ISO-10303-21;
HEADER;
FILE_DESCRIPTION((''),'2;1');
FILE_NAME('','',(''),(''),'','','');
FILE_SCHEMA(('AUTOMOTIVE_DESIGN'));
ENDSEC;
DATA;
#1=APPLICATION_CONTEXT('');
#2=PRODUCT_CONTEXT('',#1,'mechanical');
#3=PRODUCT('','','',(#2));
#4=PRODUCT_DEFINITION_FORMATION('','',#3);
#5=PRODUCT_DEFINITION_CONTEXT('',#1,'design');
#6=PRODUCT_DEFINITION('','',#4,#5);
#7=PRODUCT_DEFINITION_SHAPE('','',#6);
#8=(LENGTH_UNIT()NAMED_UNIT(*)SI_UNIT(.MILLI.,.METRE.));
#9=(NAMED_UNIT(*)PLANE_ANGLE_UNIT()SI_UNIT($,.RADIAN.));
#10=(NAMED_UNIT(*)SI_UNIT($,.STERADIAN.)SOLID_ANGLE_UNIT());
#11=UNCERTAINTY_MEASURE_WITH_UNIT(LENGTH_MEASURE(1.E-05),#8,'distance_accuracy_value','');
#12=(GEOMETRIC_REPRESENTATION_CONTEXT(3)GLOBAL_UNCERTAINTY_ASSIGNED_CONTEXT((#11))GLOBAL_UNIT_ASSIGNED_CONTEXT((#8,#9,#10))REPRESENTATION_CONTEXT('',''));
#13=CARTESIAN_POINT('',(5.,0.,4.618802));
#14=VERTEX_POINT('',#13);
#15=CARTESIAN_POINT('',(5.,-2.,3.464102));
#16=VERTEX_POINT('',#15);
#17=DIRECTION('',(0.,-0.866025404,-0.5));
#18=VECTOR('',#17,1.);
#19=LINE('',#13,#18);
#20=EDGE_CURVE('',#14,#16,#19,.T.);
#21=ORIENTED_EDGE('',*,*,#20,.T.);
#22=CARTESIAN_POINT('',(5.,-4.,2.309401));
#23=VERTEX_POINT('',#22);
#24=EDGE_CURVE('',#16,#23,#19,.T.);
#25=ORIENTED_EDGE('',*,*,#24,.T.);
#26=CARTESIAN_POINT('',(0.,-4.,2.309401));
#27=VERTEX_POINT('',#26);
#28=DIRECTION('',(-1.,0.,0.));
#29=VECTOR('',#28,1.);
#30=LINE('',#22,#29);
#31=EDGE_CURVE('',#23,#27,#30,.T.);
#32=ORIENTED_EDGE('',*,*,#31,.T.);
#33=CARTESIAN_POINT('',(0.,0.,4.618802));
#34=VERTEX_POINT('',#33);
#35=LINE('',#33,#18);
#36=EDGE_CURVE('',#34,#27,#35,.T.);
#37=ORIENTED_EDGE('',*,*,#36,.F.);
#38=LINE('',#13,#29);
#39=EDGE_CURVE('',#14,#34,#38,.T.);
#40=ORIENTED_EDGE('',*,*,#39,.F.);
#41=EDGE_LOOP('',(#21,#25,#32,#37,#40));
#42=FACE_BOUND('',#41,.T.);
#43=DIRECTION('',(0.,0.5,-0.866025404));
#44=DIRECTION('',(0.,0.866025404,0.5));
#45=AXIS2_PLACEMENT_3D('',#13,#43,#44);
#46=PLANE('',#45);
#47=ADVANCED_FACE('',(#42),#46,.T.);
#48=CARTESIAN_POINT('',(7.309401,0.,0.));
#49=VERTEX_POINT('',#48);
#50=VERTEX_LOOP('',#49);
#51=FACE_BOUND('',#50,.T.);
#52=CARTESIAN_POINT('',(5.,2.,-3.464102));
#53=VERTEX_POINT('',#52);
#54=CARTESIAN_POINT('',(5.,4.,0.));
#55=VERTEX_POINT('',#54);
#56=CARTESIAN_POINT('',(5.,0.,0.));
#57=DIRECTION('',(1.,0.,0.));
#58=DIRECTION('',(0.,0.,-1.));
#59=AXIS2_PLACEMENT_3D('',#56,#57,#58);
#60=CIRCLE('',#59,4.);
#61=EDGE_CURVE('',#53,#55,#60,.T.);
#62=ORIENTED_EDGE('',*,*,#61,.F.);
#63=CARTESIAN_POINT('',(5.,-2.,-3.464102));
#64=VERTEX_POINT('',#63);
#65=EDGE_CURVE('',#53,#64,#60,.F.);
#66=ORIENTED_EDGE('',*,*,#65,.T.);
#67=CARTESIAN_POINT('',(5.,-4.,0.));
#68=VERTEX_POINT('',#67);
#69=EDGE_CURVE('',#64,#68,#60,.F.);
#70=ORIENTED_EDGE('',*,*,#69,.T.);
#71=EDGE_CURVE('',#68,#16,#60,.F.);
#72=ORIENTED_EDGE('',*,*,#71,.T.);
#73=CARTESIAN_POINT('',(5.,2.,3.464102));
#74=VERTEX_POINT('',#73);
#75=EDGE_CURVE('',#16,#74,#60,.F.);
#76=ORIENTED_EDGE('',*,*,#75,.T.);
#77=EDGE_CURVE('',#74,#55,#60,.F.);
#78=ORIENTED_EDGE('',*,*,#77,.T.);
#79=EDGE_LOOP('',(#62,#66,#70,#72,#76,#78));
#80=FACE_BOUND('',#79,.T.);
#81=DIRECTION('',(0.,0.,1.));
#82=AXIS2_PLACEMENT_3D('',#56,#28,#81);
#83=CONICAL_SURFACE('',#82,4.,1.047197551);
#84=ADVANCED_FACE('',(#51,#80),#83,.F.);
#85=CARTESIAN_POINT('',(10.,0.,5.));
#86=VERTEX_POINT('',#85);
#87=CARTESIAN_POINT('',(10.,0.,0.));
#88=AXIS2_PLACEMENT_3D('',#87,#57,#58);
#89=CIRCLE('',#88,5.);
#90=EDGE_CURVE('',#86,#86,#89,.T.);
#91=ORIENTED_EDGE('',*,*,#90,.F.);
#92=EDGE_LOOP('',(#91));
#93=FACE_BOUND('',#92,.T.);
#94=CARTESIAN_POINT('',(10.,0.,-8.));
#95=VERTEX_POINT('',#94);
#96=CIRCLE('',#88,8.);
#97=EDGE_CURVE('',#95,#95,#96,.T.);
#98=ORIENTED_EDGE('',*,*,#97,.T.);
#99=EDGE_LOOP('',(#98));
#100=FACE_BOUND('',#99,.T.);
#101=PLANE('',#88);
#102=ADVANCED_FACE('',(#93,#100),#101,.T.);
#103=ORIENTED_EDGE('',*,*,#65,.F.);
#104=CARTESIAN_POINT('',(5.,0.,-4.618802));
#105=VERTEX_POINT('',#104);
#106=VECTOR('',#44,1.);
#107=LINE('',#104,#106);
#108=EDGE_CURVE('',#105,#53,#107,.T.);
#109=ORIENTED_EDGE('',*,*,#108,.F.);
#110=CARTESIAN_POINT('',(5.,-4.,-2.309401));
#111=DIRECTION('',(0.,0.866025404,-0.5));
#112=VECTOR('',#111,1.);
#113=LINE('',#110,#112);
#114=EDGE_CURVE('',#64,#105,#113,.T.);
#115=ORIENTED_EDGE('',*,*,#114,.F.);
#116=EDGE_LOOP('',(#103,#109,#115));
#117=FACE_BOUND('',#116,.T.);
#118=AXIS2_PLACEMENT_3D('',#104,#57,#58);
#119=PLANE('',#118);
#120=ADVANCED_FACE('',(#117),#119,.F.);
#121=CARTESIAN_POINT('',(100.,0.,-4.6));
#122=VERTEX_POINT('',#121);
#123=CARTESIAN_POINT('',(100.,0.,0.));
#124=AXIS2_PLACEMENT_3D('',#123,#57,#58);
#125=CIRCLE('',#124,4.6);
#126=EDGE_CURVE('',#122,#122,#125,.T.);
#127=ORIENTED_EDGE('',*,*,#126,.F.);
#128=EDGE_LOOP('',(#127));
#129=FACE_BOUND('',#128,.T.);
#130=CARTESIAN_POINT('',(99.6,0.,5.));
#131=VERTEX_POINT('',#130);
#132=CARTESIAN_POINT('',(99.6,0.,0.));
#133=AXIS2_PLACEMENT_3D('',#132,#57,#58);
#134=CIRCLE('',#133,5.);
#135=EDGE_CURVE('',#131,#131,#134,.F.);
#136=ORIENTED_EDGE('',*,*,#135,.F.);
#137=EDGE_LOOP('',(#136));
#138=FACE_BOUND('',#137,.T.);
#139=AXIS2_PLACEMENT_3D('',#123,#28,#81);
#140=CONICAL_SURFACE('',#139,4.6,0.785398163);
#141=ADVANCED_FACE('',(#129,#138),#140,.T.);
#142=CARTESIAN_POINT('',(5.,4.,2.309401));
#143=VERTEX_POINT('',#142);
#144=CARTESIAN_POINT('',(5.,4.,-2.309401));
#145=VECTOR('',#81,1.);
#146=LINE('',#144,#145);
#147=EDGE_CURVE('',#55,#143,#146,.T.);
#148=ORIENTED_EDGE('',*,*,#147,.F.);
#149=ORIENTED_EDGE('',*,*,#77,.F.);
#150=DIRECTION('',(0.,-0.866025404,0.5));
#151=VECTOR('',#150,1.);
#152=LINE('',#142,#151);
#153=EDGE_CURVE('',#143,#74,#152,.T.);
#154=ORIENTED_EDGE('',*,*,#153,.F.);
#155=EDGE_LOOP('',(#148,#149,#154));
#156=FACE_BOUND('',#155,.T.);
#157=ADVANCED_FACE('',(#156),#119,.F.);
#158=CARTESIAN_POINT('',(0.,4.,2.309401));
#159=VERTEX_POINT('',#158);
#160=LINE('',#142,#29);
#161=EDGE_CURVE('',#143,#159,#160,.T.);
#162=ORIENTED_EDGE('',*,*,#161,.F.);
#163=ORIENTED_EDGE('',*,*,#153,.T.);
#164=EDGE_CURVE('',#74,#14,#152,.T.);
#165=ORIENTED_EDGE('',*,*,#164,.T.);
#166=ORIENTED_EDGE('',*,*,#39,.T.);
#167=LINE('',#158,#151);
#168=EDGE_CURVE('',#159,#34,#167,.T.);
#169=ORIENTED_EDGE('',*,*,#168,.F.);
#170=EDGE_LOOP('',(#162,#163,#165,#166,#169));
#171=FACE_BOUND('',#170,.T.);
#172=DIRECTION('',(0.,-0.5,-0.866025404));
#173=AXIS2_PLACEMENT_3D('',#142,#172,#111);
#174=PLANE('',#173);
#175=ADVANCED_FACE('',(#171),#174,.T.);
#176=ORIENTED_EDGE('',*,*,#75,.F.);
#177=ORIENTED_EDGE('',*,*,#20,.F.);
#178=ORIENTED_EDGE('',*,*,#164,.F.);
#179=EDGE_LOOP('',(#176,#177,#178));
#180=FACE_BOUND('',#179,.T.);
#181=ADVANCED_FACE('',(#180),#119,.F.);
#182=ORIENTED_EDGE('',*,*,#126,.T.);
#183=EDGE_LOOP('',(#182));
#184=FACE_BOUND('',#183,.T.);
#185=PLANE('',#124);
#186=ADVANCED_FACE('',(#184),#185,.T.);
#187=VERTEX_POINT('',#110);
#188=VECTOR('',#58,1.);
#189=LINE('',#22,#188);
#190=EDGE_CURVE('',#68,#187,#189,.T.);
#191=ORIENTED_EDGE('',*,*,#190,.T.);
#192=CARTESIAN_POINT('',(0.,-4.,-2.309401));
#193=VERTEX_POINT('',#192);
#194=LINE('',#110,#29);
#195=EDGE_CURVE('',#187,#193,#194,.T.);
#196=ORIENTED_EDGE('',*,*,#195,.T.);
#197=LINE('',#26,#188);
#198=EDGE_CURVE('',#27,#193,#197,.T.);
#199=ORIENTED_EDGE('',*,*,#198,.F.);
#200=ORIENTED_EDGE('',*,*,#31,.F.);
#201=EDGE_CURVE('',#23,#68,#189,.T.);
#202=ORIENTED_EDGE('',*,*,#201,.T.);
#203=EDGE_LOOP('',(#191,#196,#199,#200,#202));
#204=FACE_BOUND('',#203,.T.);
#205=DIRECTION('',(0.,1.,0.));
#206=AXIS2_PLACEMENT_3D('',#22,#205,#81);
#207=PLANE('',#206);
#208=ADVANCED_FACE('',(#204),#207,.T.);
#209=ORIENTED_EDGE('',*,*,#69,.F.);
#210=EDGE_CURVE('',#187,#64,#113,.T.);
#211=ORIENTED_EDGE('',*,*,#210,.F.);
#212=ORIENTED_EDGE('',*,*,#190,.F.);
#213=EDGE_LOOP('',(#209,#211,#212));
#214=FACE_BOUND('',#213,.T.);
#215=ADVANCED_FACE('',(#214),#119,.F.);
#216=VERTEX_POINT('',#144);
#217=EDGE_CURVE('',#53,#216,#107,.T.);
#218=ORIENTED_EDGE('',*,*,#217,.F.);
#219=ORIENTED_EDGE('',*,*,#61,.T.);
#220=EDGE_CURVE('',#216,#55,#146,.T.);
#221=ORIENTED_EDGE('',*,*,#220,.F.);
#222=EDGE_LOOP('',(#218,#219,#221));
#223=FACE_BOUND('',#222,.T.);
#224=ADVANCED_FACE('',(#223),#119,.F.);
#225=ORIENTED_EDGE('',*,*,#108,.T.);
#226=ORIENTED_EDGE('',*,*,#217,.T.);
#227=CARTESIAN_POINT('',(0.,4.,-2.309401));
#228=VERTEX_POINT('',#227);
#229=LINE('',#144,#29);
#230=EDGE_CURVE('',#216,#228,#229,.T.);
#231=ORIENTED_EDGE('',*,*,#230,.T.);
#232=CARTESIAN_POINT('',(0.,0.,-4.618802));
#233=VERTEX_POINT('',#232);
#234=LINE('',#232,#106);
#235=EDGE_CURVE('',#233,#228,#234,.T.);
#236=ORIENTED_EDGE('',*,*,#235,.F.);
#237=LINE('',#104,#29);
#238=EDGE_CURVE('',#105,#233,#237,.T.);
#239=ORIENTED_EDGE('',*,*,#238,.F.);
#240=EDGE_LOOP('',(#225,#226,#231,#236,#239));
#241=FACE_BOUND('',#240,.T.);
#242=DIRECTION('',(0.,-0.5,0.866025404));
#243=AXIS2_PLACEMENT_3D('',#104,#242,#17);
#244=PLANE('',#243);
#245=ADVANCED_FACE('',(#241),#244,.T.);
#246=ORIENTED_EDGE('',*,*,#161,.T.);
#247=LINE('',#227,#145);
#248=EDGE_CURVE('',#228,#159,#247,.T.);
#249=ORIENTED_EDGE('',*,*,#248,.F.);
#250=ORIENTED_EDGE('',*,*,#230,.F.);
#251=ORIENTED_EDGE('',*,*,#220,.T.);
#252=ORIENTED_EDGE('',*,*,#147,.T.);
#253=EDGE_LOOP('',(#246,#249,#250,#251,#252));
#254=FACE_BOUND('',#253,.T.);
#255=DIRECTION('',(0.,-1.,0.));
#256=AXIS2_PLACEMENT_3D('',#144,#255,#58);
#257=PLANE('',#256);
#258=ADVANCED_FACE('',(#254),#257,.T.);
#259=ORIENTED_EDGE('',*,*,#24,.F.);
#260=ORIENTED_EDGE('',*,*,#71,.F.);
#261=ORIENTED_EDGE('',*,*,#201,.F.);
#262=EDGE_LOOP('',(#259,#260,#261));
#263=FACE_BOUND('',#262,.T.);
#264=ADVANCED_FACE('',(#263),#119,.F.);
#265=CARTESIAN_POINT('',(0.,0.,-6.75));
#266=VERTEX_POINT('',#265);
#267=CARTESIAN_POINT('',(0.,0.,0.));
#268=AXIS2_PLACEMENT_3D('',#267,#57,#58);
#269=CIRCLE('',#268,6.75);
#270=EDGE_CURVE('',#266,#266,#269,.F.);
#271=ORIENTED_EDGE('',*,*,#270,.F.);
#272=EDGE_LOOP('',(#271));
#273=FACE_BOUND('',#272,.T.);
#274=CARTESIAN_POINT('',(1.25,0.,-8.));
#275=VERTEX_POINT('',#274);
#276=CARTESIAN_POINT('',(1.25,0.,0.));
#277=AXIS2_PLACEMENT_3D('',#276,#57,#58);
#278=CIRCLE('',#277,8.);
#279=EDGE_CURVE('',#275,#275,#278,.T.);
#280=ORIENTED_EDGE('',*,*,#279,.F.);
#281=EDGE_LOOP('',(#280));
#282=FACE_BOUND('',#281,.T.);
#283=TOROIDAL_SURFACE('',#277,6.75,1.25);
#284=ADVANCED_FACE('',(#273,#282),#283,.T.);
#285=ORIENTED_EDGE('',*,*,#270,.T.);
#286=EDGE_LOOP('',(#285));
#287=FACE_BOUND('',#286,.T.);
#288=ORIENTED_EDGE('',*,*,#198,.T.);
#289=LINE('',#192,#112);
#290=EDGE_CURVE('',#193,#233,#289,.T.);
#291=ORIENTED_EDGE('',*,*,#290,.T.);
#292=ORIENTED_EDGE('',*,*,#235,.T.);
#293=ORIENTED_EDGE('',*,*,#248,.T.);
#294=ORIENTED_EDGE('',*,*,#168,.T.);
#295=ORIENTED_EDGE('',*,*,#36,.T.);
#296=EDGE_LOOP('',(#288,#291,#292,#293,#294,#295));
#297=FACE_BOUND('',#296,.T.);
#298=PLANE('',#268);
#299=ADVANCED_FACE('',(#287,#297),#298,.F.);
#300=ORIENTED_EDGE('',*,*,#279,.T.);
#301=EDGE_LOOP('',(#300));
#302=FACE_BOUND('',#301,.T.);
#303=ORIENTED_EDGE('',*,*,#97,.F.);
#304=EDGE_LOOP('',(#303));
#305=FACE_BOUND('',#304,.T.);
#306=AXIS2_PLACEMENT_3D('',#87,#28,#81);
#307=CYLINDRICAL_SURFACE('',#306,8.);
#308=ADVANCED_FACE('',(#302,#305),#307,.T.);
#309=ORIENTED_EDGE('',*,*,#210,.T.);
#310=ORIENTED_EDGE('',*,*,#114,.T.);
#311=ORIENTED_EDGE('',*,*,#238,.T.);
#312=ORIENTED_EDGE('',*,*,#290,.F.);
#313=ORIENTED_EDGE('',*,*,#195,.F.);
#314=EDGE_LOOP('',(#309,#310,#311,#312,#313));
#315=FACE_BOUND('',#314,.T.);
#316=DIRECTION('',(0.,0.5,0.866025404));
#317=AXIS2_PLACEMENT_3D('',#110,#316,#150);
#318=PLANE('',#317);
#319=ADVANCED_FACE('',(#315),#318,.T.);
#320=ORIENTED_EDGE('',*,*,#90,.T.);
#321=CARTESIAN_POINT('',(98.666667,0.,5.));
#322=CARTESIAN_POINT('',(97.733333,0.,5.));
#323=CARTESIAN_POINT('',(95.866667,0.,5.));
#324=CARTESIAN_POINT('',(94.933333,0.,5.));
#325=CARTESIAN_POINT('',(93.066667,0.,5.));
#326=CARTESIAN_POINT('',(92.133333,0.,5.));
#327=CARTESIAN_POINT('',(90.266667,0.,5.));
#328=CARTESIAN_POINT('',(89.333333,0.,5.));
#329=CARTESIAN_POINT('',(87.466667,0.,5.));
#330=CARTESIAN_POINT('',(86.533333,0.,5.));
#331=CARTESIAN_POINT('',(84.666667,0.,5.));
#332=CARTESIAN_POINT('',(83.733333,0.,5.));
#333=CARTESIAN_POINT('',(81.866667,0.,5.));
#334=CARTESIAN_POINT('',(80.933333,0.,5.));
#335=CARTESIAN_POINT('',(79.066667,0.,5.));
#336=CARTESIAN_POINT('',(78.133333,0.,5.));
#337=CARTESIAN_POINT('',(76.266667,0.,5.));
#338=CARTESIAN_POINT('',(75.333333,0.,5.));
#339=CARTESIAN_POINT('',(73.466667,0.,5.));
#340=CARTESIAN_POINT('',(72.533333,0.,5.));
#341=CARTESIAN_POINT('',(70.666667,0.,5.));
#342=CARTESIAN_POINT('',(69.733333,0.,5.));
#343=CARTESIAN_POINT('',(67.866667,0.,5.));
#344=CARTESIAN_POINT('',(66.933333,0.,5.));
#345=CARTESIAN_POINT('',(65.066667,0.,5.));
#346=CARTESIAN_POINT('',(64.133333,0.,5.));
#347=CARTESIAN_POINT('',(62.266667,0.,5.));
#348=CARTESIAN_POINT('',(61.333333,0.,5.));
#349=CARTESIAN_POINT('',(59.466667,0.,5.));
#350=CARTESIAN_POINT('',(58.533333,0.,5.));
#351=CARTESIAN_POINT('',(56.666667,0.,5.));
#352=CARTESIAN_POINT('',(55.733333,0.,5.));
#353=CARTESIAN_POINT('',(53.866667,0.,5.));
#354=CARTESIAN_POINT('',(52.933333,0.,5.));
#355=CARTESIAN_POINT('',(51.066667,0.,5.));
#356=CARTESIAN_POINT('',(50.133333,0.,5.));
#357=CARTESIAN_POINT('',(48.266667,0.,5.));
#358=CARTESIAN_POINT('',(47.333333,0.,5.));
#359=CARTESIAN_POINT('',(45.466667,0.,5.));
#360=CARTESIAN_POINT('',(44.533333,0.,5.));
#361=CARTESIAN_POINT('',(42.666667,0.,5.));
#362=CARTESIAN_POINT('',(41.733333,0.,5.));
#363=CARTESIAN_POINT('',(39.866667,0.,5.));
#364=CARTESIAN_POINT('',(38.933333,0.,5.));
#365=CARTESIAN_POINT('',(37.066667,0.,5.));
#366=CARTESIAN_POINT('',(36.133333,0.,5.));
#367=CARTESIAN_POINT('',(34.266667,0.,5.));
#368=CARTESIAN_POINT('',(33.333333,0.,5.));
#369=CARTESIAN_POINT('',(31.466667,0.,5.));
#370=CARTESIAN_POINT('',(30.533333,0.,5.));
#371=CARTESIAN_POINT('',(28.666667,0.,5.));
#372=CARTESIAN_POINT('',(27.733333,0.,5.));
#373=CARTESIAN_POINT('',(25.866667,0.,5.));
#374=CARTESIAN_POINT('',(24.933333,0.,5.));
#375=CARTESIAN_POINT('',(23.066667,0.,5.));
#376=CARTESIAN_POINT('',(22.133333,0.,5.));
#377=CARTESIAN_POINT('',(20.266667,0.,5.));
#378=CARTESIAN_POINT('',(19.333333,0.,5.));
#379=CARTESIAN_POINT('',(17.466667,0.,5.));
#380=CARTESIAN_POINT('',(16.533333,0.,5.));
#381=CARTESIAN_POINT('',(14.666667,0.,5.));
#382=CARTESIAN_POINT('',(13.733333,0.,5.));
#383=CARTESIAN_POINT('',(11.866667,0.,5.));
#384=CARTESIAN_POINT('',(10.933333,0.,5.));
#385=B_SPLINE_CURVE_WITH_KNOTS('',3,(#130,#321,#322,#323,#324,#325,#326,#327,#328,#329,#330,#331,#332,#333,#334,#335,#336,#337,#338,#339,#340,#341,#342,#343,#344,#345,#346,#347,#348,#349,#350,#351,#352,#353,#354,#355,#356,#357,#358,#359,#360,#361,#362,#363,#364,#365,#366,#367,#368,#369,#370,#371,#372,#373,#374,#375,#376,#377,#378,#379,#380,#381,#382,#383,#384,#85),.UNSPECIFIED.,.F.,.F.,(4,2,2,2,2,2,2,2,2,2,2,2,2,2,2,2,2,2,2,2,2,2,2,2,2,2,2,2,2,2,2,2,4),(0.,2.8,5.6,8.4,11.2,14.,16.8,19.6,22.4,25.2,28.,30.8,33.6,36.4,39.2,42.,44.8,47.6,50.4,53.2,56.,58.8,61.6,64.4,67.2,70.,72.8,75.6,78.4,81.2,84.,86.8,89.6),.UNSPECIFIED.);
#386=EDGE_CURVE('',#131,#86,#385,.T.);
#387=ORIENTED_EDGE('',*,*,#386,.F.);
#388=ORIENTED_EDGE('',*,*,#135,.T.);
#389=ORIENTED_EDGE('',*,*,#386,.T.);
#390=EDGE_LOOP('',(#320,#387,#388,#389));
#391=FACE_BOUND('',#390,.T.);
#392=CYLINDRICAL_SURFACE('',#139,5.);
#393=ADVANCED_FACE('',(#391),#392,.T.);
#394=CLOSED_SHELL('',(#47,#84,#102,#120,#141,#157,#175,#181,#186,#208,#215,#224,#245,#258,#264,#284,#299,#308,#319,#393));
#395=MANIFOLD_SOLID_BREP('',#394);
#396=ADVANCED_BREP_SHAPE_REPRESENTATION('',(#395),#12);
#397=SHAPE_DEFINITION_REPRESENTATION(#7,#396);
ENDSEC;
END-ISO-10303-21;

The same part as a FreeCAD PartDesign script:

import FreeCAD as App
import Part
import Sketcher
Q = App.Units.Quantity


def edges_at(feature, points):
    """Names of the edges that pass closest to the given points."""
    edges = feature.Shape.Edges
    near = lambda p: min(range(len(edges)), key=lambda i: edges[i].distToShape(Part.Vertex(*p))[0])
    return sorted({f"Edge{near(p) + 1}" for p in points})

doc = App.newDocument("Part")
body = doc.addObject("PartDesign::Body", "Body")

sketch1 = body.newObject("Sketcher::SketchObject", "Sketch")
sketch1.AttachmentSupport = (doc.getObject("YZ_Plane"), [""])
sketch1.MapMode = "FlatFace"
sketch1.addGeometry(Part.Circle(App.Vector(0, 0, 0), App.Vector(0, 0, 1), 8), False)
sketch1.addConstraint([
    Sketcher.Constraint("Coincident", 0, 3, -1, 1),
    Sketcher.Constraint("Diameter", 0, Q("16 mm")),
])
pad1 = body.newObject("PartDesign::Pad", "Pad")
pad1.Profile = sketch1
pad1.Length = 10

sketch2 = body.newObject("Sketcher::SketchObject", "Sketch001")
sketch2.AttachmentSupport = (doc.getObject("YZ_Plane"), [""])
sketch2.MapMode = "FlatFace"
sketch2.AttachmentOffset = App.Placement(App.Vector(0, 0, 10), App.Rotation())
sketch2.addGeometry(Part.Circle(App.Vector(0, 0, 0), App.Vector(0, 0, 1), 5), False)
sketch2.addConstraint([
    Sketcher.Constraint("Coincident", 0, 3, -1, 1),
    Sketcher.Constraint("Diameter", 0, Q("10 mm")),
])
pad2 = body.newObject("PartDesign::Pad", "Pad001")
pad2.Profile = sketch2
pad2.Length = 90

sketch3 = body.newObject("Sketcher::SketchObject", "Sketch002")
sketch3.AttachmentSupport = (doc.getObject("YZ_Plane"), [""])
sketch3.MapMode = "FlatFace"
sketch3.addGeometry([
    Part.LineSegment(App.Vector(0, -4.618802, 0), App.Vector(4, -2.309401, 0)),
    Part.LineSegment(App.Vector(4, -2.309401, 0), App.Vector(4, 2.309401, 0)),
    Part.LineSegment(App.Vector(4, 2.309401, 0), App.Vector(0, 4.618802, 0)),
    Part.LineSegment(App.Vector(0, 4.618802, 0), App.Vector(-4, 2.309401, 0)),
    Part.LineSegment(App.Vector(-4, 2.309401, 0), App.Vector(-4, -2.309401, 0)),
    Part.LineSegment(App.Vector(-4, -2.309401, 0), App.Vector(0, -4.618802, 0)),
], False)
sketch3.addConstraint([
    Sketcher.Constraint("Coincident", 0, 2, 1, 1),
    Sketcher.Constraint("Coincident", 1, 2, 2, 1),
    Sketcher.Constraint("Coincident", 2, 2, 3, 1),
    Sketcher.Constraint("Coincident", 3, 2, 4, 1),
    Sketcher.Constraint("Coincident", 4, 2, 5, 1),
    Sketcher.Constraint("Coincident", 5, 2, 0, 1),
    Sketcher.Constraint("Vertical", 1),
    Sketcher.Constraint("Vertical", 4),
    Sketcher.Constraint("Symmetric", 0, 2, 3, 2, -1, 1),
    Sketcher.Constraint("Symmetric", 2, 2, 5, 2, -1, 1),
    Sketcher.Constraint("PointOnObject", 2, 2, -2),
    Sketcher.Constraint("Parallel", 2, 5),
    Sketcher.Constraint("Horizontal", 1, 2, 3, 2),
    Sketcher.Constraint("Angle", 0, Q("30 deg")),
    Sketcher.Constraint("DistanceX", -1, 1, 0, 2, Q("4 mm")),
    Sketcher.Constraint("DistanceY", 0, 2, -1, 1, Q("2.309401 mm")),
])
pocket1 = body.newObject("PartDesign::Pocket", "Pocket")
pocket1.Profile = sketch3
pocket1.Length = 5
pocket1.Reversed = True

sketch4 = body.newObject("Sketcher::SketchObject", "Sketch003")
sketch4.AttachmentSupport = (doc.getObject("XY_Plane"), [""])
sketch4.MapMode = "FlatFace"
sketch4.addGeometry([
    Part.LineSegment(App.Vector(5, -4, 0), App.Vector(7.309401, 0, 0)),
    Part.LineSegment(App.Vector(7.309401, 0, 0), App.Vector(5, 0, 0)),
    Part.LineSegment(App.Vector(5, 0, 0), App.Vector(5, -4, 0)),
], False)
sketch4.addConstraint([
    Sketcher.Constraint("Coincident", 0, 2, 1, 1),
    Sketcher.Constraint("Coincident", 1, 2, 2, 1),
    Sketcher.Constraint("Coincident", 2, 2, 0, 1),
    Sketcher.Constraint("Horizontal", 1),
    Sketcher.Constraint("Vertical", 2),
    Sketcher.Constraint("PointOnObject", 0, 2, -1),
    Sketcher.Constraint("DistanceY", 2, 2, 2, 1, Q("4 mm")),
    Sketcher.Constraint("Angle", 0, Q("60 deg")),
    Sketcher.Constraint("DistanceX", -1, 1, 1, 2, Q("5 mm")),
])
groove = body.newObject("PartDesign::Groove", "Groove")
groove.Profile = sketch4
groove.ReferenceAxis = (sketch4, ["H_Axis"])
groove.Angle = 360
doc.recompute()

fillet = body.newObject("PartDesign::Fillet", "Fillet")
fillet.Base = (groove, edges_at(groove, [(0, 0, 8)]))
fillet.Radius = 1.25
doc.recompute()

chamfer = body.newObject("PartDesign::Chamfer", "Chamfer")
chamfer.Base = (fillet, edges_at(fillet, [(100, 0, -5)]))
chamfer.Size = 0.4

doc.recompute()
